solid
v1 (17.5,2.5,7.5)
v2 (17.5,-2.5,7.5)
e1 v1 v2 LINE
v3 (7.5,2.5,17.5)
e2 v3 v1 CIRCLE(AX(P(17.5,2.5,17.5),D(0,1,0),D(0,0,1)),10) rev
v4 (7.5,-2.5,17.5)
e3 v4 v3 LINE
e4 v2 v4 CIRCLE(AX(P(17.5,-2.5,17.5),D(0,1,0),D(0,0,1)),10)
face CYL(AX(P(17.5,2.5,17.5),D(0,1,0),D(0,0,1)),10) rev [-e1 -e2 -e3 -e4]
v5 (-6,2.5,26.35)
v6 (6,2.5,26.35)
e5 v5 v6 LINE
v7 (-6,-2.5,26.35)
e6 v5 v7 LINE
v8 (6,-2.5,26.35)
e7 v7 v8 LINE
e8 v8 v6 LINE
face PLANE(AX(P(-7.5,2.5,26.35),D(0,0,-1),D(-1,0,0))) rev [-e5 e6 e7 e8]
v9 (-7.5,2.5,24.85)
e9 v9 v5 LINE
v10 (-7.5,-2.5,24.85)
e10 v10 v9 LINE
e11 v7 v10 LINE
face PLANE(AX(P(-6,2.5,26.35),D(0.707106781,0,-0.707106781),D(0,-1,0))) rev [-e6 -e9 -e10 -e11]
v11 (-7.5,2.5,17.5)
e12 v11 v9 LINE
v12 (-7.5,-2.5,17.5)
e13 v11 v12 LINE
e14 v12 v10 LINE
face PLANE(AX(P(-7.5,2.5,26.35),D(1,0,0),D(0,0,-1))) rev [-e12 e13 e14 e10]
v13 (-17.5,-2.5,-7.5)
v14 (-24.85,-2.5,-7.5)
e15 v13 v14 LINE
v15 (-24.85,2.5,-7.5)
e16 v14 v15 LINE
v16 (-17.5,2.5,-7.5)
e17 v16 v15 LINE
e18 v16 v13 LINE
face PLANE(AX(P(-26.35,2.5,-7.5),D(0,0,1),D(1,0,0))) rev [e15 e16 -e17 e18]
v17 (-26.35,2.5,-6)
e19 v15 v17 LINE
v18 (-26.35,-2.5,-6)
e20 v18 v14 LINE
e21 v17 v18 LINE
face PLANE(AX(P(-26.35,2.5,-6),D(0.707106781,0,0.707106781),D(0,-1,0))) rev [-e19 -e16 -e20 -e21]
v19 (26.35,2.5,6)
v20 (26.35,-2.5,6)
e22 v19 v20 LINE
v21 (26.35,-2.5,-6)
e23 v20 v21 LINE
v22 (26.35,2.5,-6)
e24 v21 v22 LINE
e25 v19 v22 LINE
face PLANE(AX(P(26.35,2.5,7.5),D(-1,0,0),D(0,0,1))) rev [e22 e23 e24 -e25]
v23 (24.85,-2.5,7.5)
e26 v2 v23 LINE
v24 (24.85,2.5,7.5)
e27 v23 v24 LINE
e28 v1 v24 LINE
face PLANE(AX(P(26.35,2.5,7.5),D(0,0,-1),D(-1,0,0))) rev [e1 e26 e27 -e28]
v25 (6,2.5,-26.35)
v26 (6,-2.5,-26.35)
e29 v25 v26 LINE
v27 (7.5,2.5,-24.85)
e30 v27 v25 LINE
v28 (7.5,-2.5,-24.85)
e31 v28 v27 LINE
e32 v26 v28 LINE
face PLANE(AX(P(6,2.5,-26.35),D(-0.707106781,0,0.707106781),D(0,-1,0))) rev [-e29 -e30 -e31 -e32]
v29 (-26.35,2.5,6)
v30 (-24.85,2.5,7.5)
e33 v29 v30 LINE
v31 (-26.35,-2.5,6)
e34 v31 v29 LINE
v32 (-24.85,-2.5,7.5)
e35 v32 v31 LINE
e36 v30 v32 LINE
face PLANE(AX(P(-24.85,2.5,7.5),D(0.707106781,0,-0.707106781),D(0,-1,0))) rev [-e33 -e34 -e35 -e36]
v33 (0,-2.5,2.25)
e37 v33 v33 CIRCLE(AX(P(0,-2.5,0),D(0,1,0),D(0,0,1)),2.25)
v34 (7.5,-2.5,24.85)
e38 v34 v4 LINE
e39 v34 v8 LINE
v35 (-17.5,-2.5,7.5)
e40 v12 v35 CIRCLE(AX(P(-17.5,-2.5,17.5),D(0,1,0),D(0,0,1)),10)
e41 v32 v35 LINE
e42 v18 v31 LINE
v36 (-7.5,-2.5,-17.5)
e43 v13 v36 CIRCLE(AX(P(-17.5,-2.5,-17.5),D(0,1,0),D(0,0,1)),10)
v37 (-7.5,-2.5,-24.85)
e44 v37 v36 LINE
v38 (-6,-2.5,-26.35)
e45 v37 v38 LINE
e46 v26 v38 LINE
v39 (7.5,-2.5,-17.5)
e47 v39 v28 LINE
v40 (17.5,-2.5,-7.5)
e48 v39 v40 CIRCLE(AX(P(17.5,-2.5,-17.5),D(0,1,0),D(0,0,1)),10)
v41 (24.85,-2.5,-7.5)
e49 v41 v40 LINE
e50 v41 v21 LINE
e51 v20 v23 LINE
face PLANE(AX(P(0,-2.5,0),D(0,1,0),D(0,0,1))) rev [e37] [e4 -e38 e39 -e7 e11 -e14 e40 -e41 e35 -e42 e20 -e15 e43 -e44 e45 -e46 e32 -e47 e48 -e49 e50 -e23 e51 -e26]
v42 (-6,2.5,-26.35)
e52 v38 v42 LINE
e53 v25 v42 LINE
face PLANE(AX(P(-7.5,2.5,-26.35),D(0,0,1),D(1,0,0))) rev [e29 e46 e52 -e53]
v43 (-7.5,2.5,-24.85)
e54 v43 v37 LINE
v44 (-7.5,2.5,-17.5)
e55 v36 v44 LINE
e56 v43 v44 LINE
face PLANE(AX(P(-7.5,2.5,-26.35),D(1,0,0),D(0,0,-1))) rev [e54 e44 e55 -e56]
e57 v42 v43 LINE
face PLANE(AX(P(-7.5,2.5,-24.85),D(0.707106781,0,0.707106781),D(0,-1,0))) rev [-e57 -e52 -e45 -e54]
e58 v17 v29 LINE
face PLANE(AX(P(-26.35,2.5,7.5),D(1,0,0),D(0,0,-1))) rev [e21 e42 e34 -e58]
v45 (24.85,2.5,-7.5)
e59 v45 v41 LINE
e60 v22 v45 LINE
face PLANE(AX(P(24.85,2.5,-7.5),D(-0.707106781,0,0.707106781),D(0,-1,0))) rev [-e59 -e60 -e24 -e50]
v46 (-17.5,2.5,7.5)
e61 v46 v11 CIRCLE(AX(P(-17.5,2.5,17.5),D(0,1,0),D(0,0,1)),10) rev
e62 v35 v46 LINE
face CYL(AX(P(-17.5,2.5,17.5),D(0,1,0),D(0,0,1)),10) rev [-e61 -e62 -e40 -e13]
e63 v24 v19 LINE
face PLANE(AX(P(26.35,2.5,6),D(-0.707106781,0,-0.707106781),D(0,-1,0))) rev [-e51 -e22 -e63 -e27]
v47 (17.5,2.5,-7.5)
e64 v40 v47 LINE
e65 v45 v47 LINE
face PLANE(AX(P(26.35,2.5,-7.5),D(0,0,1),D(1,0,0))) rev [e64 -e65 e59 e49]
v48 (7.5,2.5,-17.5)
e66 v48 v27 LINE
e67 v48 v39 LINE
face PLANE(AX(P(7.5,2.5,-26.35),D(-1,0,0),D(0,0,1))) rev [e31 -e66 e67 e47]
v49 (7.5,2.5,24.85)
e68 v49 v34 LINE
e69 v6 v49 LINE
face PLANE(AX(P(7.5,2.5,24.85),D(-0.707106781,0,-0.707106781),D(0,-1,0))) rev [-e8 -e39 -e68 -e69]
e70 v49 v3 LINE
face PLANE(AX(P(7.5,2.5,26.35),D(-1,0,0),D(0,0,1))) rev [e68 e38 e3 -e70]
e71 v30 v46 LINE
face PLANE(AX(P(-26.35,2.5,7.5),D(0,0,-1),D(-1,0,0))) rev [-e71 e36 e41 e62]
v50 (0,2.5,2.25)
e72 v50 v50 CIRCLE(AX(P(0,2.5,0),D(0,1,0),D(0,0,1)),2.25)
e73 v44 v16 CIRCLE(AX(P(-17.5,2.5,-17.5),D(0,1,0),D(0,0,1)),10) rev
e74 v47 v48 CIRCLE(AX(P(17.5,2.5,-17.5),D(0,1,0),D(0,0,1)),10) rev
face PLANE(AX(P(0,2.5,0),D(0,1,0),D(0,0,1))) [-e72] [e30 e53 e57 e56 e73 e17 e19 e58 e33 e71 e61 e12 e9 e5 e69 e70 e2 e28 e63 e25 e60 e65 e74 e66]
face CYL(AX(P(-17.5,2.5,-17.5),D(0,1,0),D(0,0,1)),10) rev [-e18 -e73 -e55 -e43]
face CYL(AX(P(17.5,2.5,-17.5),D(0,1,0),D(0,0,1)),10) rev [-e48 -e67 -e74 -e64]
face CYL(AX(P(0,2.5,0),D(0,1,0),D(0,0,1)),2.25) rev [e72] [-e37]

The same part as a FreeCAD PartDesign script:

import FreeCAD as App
import Part
import Sketcher
from FreeCAD import Vector


def edges_at(feature, points):
    """Names of the edges that pass closest to the given points."""
    edges = feature.Shape.Edges
    near = lambda p: min(range(len(edges)), key=lambda i: edges[i].distToShape(Part.Vertex(*p))[0])
    return sorted({f"Edge{near(p) + 1}" for p in points})


def add_polygon(sketch, points):
    """Adds a closed chain of lines whose ends are joined by coincident constraints."""
    first, n = sketch.GeometryCount, len(points)
    for a, b in zip(points, points[1:] + points[:1]):
        sketch.addGeometry(Part.LineSegment(App.Vector(*a, 0), App.Vector(*b, 0)), False)
    for i in range(n):
        sketch.addConstraint(Sketcher.Constraint("Coincident", first + i, 2, first + (i + 1) % n, 1))

doc = App.newDocument("Part")
body = doc.addObject("PartDesign::Body", "Body")

sketch1 = body.newObject("Sketcher::SketchObject", "Sketch")
sketch1.AttachmentSupport = (doc.getObject("XZ_Plane"), [""])
sketch1.MapMode = "FlatFace"
add_polygon(sketch1, [(8, -26), (-8, -26), (-8, -8), (-26, -8), (-26, 8), (-8, 8), (-8, 26), (8, 26), (8, 8), (26, 8), (26, -8), (8, -8)])
sketch1.addConstraint([
    Sketcher.Constraint("Horizontal", 0),
    Sketcher.Constraint("Vertical", 1),
    Sketcher.Constraint("Horizontal", 2),
    Sketcher.Constraint("Vertical", 3),
    Sketcher.Constraint("Horizontal", 4),
    Sketcher.Constraint("Vertical", 5),
    Sketcher.Constraint("Horizontal", 6),
    Sketcher.Constraint("Vertical", 7),
    Sketcher.Constraint("Horizontal", 8),
    Sketcher.Constraint("Vertical", 9),
    Sketcher.Constraint("Horizontal", 10),
    Sketcher.Constraint("Vertical", 11),
    Sketcher.Constraint("Symmetric", 0, 2, 6, 2, -1, 1),
    Sketcher.Constraint("Symmetric", 2, 2, 8, 2, -1, 1),
    Sketcher.Constraint("Symmetric", 4, 2, 10, 2, -1, 1),
    Sketcher.Constraint("Symmetric", 4, 2, 7, 2, -2),
    Sketcher.Constraint("Equal", 10, 1),
    Sketcher.Constraint("Equal", 6, 3),
    Sketcher.Constraint("DistanceX", 0, 2, 0, 1, 15.0),
    Sketcher.Constraint("DistanceX", 2, 2, 2, 1, 18.85),
])
pad1 = body.newObject("PartDesign::Pad", "Pad")
pad1.Profile = sketch1
pad1.Length = 5
pad1.Midplane = True
doc.recompute()

fillet = body.newObject("PartDesign::Fillet", "Fillet")
fillet.Base = (pad1, edges_at(pad1, [
    (7.5, 0, 7.5),
    (-7.5, 0, 7.5),
    (-7.5, 0, -7.5),
    (7.5, 0, -7.5),
]))
fillet.Radius = 10
doc.recompute()

chamfer = body.newObject("PartDesign::Chamfer", "Chamfer")
chamfer.Base = (fillet, edges_at(fillet, [
    (26.35, 0, -7.5),
    (26.35, 0, 7.5),
    (7.5, 0, 26.35),
    (-7.5, 0, 26.35),
    (-26.35, 0, 7.5),
    (-26.35, 0, -7.5),
    (-7.5, 0, -26.35),
    (7.5, 0, -26.35),
]))
chamfer.Size = 1.5

sketch2 = body.newObject("Sketcher::SketchObject", "Sketch001")
sketch2.AttachmentSupport = (doc.getObject("XZ_Plane"), [""])
sketch2.MapMode = "FlatFace"
sketch2.AttachmentOffset = App.Placement(Vector(0, 0, -2.5), App.Rotation())
sketch2.addGeometry(Part.Circle(Vector(0, 0, 0), Vector(0, 0, 1), 2.2), False)
sketch2.addConstraint([
    Sketcher.Constraint("Coincident", 0, 3, -1, 1),
    Sketcher.Constraint("Diameter", 0, 4.5),
])
doc.recompute()
hole = body.newObject("PartDesign::Hole", "Hole")
hole.Profile = sketch2
hole.ThreadType = "None"
hole.Diameter = 4.5
hole.DepthType = "Dimension"
hole.Depth = 5.2
hole.DrillPoint = "Angled"
hole.DrillPointAngle = 118
hole.Reversed = True

doc.recompute()
